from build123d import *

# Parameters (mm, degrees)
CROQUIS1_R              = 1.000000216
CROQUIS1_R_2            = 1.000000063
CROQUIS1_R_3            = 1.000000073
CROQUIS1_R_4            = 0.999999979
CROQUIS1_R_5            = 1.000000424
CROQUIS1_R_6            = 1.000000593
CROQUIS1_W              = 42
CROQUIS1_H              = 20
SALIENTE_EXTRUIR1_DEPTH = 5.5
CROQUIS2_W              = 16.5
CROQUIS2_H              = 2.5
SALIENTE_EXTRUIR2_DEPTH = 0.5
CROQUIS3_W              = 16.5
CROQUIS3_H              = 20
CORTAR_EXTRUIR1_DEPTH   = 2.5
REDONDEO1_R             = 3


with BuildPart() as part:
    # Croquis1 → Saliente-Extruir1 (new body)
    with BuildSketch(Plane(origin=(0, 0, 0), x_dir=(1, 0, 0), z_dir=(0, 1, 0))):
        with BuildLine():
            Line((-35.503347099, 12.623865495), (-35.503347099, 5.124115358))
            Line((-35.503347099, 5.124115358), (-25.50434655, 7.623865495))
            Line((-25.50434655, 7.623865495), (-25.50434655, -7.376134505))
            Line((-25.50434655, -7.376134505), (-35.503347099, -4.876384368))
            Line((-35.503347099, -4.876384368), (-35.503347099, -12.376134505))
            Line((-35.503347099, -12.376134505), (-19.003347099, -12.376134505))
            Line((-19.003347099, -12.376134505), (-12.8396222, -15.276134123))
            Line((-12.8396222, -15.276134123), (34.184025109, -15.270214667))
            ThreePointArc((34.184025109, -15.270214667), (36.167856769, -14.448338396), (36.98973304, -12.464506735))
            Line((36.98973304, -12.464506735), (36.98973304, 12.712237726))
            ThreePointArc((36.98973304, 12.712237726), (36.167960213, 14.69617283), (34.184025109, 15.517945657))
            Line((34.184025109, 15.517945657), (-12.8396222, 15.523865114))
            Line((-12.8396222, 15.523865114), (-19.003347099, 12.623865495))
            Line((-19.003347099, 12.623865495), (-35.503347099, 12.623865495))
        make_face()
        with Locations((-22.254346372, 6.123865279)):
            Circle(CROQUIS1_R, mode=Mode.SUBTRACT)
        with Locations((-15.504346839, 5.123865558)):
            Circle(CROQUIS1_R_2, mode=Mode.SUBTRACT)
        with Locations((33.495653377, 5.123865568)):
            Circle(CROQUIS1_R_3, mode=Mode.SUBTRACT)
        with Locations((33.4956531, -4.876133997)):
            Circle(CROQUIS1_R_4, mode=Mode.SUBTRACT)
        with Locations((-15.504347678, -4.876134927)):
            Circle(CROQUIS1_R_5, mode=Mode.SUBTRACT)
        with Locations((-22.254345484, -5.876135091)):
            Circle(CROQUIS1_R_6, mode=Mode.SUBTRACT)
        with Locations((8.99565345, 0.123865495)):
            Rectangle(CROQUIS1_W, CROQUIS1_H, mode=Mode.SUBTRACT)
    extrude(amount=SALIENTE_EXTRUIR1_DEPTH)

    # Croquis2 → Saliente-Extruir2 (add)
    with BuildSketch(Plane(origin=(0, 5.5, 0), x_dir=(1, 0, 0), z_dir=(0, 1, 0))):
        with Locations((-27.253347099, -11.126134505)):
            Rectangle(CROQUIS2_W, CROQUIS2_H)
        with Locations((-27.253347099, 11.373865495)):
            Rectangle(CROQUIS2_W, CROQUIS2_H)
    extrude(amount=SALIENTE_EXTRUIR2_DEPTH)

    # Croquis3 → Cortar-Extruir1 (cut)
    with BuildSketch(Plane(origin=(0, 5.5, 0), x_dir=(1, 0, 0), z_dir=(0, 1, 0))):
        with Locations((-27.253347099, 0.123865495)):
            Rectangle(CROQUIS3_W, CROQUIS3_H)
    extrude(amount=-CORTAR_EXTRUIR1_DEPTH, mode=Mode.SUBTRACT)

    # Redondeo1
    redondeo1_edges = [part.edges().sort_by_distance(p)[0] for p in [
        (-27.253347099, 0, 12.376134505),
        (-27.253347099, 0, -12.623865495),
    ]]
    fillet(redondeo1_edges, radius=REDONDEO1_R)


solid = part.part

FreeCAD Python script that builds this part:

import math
import FreeCAD as App
import Part
import Sketcher


def edges_at(feature, points):
    """Names of the edges that pass closest to the given points."""
    edges = feature.Shape.Edges
    near = lambda p: min(range(len(edges)), key=lambda i: edges[i].distToShape(Part.Vertex(*p))[0])
    return sorted({f"Edge{near(p) + 1}" for p in points})

doc = App.newDocument("Part")
body = doc.addObject("PartDesign::Body", "Body")

# Sketch on XZ plane
sketch1 = doc.addObject("Sketcher::SketchObject", "Sketch")
body.addObject(sketch1)
sketch1.AttachmentSupport = (doc.XZ_Plane, [""])
sketch1.MapMode = "FlatFace"
sketch1.addGeometry([
    Part.LineSegment(App.Vector(-35.5, -12.6, 0), App.Vector(-35.5, -5.1, 0)),  # 0
    Part.LineSegment(App.Vector(-35.5, -5.1, 0), App.Vector(-25.5, -7.6, 0)),  # 1
    Part.LineSegment(App.Vector(-25.5, -7.6, 0), App.Vector(-25.5, 7.4, 0)),  # 2
    Part.LineSegment(App.Vector(-25.5, 7.4, 0), App.Vector(-35.5, 4.9, 0)),  # 3
    Part.LineSegment(App.Vector(-35.5, 4.9, 0), App.Vector(-35.5, 12.4, 0)),  # 4
    Part.LineSegment(App.Vector(-35.5, 12.4, 0), App.Vector(-19, 12.4, 0)),  # 5
    Part.LineSegment(App.Vector(-19, 12.4, 0), App.Vector(-12.8, 15.3, 0)),  # 6
    Part.LineSegment(App.Vector(-12.8, 15.3, 0), App.Vector(34.2, 15.3, 0)),  # 7
    Part.ArcOfCircle(Part.Circle(App.Vector(34.2, 12.5, 0), App.Vector(0, 0, 1), 2.8), math.radians(0), math.radians(90)),  # 8
    Part.LineSegment(App.Vector(37, 12.5, 0), App.Vector(37, -12.7, 0)),  # 9
    Part.ArcOfCircle(Part.Circle(App.Vector(34.2, -12.7, 0), App.Vector(0, 0, 1), 2.8), math.radians(-90), math.radians(0)),  # 10
    Part.LineSegment(App.Vector(34.2, -15.5, 0), App.Vector(-12.8, -15.5, 0)),  # 11
    Part.LineSegment(App.Vector(-12.8, -15.5, 0), App.Vector(-19, -12.6, 0)),  # 12
    Part.LineSegment(App.Vector(-19, -12.6, 0), App.Vector(-35.5, -12.6, 0)),  # 13
    Part.Circle(App.Vector(-22.3, 5.9, 0), App.Vector(0, 0, 1), 1),  # 14
    Part.Circle(App.Vector(-15.5, 4.9, 0), App.Vector(0, 0, 1), 1),  # 15
    Part.Circle(App.Vector(33.5, 4.9, 0), App.Vector(0, 0, 1), 1),  # 16
    Part.Circle(App.Vector(-22.3, -6.1, 0), App.Vector(0, 0, 1), 1),  # 17
    Part.Circle(App.Vector(-15.5, -5.1, 0), App.Vector(0, 0, 1), 1),  # 18
    Part.LineSegment(App.Vector(30, 9.9, 0), App.Vector(-12, 9.9, 0)),  # 19
    Part.LineSegment(App.Vector(-12, 9.9, 0), App.Vector(-12, -10.1, 0)),  # 20
    Part.LineSegment(App.Vector(-12, -10.1, 0), App.Vector(30, -10.1, 0)),  # 21
    Part.LineSegment(App.Vector(30, -10.1, 0), App.Vector(30, 9.9, 0)),  # 22
    Part.Circle(App.Vector(33.5, -5.1, 0), App.Vector(0, 0, 1), 1),  # 23
], False)
sketch1.addConstraint([
    Sketcher.Constraint("Coincident", 0, 2, 1, 1),
    Sketcher.Constraint("Coincident", 1, 2, 2, 1),
    Sketcher.Constraint("Coincident", 2, 2, 3, 1),
    Sketcher.Constraint("Coincident", 3, 2, 4, 1),
    Sketcher.Constraint("Coincident", 4, 2, 5, 1),
    Sketcher.Constraint("Coincident", 5, 2, 6, 1),
    Sketcher.Constraint("Coincident", 6, 2, 7, 1),
    Sketcher.Constraint("Tangent", 7, 2, 8, 2),
    Sketcher.Constraint("Coincident", 8, 1, 9, 1),
    Sketcher.Constraint("Tangent", 9, 2, 10, 2),
    Sketcher.Constraint("Coincident", 10, 1, 11, 1),
    Sketcher.Constraint("Coincident", 11, 2, 12, 1),
    Sketcher.Constraint("Coincident", 12, 2, 13, 1),
    Sketcher.Constraint("Coincident", 13, 2, 0, 1),
    Sketcher.Constraint("Coincident", 19, 2, 20, 1),
    Sketcher.Constraint("Coincident", 20, 2, 21, 1),
    Sketcher.Constraint("Coincident", 21, 2, 22, 1),
    Sketcher.Constraint("Coincident", 22, 2, 19, 1),
    Sketcher.Constraint("Vertical", 0),
    Sketcher.Constraint("Vertical", 2),
    Sketcher.Constraint("Vertical", 4),
    Sketcher.Constraint("Horizontal", 5),
    Sketcher.Constraint("Vertical", 9),
    Sketcher.Constraint("Horizontal", 13),
    Sketcher.Constraint("Horizontal", 19),
    Sketcher.Constraint("Vertical", 20),
    Sketcher.Constraint("Horizontal", 21),
    Sketcher.Constraint("Vertical", 22),
    Sketcher.Constraint("Equal", 14, 15),
    Sketcher.Constraint("Equal", 15, 16),
    Sketcher.Constraint("Equal", 16, 17),
    Sketcher.Constraint("Equal", 17, 18),
    Sketcher.Constraint("Equal", 18, 23),
    Sketcher.Constraint("Horizontal", 15, 3, 16, 3),
    Sketcher.Constraint("Horizontal", 18, 3, 23, 3),
    Sketcher.Constraint("Vertical", 14, 3, 17, 3),
    Sketcher.Constraint("Vertical", 15, 3, 18, 3),
    Sketcher.Constraint("Vertical", 16, 3, 23, 3),
    Sketcher.Constraint("Vertical", 0, 2, 3, 2),
    Sketcher.Constraint("Vertical", 10, 3, 7, 2),
    Sketcher.Constraint("Vertical", 7, 2, 10, 1),
    Sketcher.Constraint("Vertical", 6, 2, 11, 2),
    Sketcher.Constraint("Vertical", 5, 2, 12, 2),
    Sketcher.Constraint("Equal", 0, 4),
    Sketcher.Constraint("Equal", 1, 3),
    Sketcher.Constraint("Equal", 6, 12),
    Sketcher.Constraint("Diameter", 14, 2.000001),
    Sketcher.Constraint("DistanceX", 19, 2, 19, 1, 42.0),
    Sketcher.Constraint("DistanceY", 2, 1, 2, 2, 15.0),
    Sketcher.Constraint("DistanceY", 20, 2, 20, 1, 20.0),
    Sketcher.Constraint("DistanceX", 5, 1, 5, 2, 16.5),
    Sketcher.Constraint("DistanceY", 15, 3, 14, 3, 1.0),
    Sketcher.Constraint("DistanceX", 15, 3, 16, 3, 49.000001),
    Sketcher.Constraint("DistanceY", 17, 3, 14, 3, 12.0),
    Sketcher.Constraint("DistanceY", 17, 3, 18, 3, 1.0),
    Sketcher.Constraint("DistanceX", 1, 2, 18, 3, 10.0),
    Sketcher.Constraint("DistanceY", 2, 2, 4, 2, 5.0),
    Sketcher.Constraint("DistanceY", 15, 3, 19, 2, 5.0),
    Sketcher.Constraint("DistanceY", 1, 2, 17, 3, 1.5),
    Sketcher.Constraint("DistanceY", 5, 2, 6, 2, 2.9),
    Sketcher.Constraint("DistanceX", 15, 3, 19, 2, 3.500001),
    Sketcher.Constraint("Radius", 8, 2.806061),
    Sketcher.Constraint("DistanceX", 14, 3, 16, 3, 55.749999),
    Sketcher.Constraint("Radius", 10, 2.805708),
    Sketcher.Constraint("DistanceX", 0, 2, 17, 3, 13.249001),
    Sketcher.Constraint("DistanceY", 0, 1, 0, 2, 7.49975),
    Sketcher.Constraint("DistanceY", 10, 1, 8, 3, 27.982099),
    Sketcher.Constraint("DistanceY", 9, 2, 9, 1, 25.176744),
    Sketcher.Constraint("DistanceX", -1, 1, 8, 3, 34.183672),
    Sketcher.Constraint("DistanceX", 14, 3, 10, 3, 56.438371),
    Sketcher.Constraint("Distance", 6, 6.811865),
    Sketcher.Constraint("DistanceY", -1, 1, 8, 3, 12.464154),
])
pad1 = doc.addObject("PartDesign::Pad", "Pad")
body.addObject(pad1)
pad1.Profile = sketch1
pad1.Length = 5.5
pad1.Reversed = True

# Sketch on XZ plane
sketch2 = doc.addObject("Sketcher::SketchObject", "Sketch001")
body.addObject(sketch2)
sketch2.AttachmentSupport = (doc.XZ_Plane, [""])
sketch2.MapMode = "FlatFace"
sketch2.AttachmentOffset = App.Placement(App.Vector(0, 0, -5.5), App.Rotation())
sketch2.addGeometry([
    Part.LineSegment(App.Vector(-35.5, 9.9, 0), App.Vector(-35.5, 12.4, 0)),  # 0
    Part.LineSegment(App.Vector(-35.5, 12.4, 0), App.Vector(-19, 12.4, 0)),  # 1
    Part.LineSegment(App.Vector(-19, 12.4, 0), App.Vector(-19, 9.9, 0)),  # 2
    Part.LineSegment(App.Vector(-19, 9.9, 0), App.Vector(-35.5, 9.9, 0)),  # 3
    Part.LineSegment(App.Vector(-35.5, -12.6, 0), App.Vector(-35.5, -10.1, 0)),  # 4
    Part.LineSegment(App.Vector(-35.5, -10.1, 0), App.Vector(-19, -10.1, 0)),  # 5
    Part.LineSegment(App.Vector(-19, -10.1, 0), App.Vector(-19, -12.6, 0)),  # 6
    Part.LineSegment(App.Vector(-19, -12.6, 0), App.Vector(-35.5, -12.6, 0)),  # 7
], False)
sketch2.addConstraint([
    Sketcher.Constraint("Coincident", 0, 2, 1, 1),
    Sketcher.Constraint("Coincident", 1, 2, 2, 1),
    Sketcher.Constraint("Coincident", 2, 2, 3, 1),
    Sketcher.Constraint("Coincident", 3, 2, 0, 1),
    Sketcher.Constraint("Coincident", 4, 2, 5, 1),
    Sketcher.Constraint("Coincident", 5, 2, 6, 1),
    Sketcher.Constraint("Coincident", 6, 2, 7, 1),
    Sketcher.Constraint("Coincident", 7, 2, 4, 1),
    Sketcher.Constraint("Vertical", 0),
    Sketcher.Constraint("Horizontal", 1),
    Sketcher.Constraint("Vertical", 2),
    Sketcher.Constraint("Horizontal", 3),
    Sketcher.Constraint("Vertical", 4),
    Sketcher.Constraint("Horizontal", 5),
    Sketcher.Constraint("Vertical", 6),
    Sketcher.Constraint("Horizontal", 7),
    Sketcher.Constraint("Vertical", 3, 2, 4, 2),
    Sketcher.Constraint("Vertical", 2, 2, 5, 2),
    Sketcher.Constraint("Equal", 2, 4),
    Sketcher.Constraint("DistanceX", 1, 1, 1, 2, 16.5),
    Sketcher.Constraint("DistanceY", 0, 1, 0, 2, 2.5),
    Sketcher.Constraint("DistanceY", 4, 2, 3, 2, 20.0),
    Sketcher.Constraint("DistanceX", 0, 2, -1, 1, 35.503347),
    Sketcher.Constraint("DistanceY", -1, 1, 0, 2, 12.376135),
])
pad2 = doc.addObject("PartDesign::Pad", "Pad001")
body.addObject(pad2)
pad2.Profile = sketch2
pad2.Length = 0.5
pad2.Reversed = True

# Sketch on XZ plane
sketch3 = doc.addObject("Sketcher::SketchObject", "Sketch002")
body.addObject(sketch3)
sketch3.AttachmentSupport = (doc.XZ_Plane, [""])
sketch3.MapMode = "FlatFace"
sketch3.AttachmentOffset = App.Placement(App.Vector(0, 0, -5.5), App.Rotation())
sketch3.addGeometry([
    Part.LineSegment(App.Vector(-36, -10, 0), App.Vector(-36, 10, 0)),
    Part.LineSegment(App.Vector(-36, 10, 0), App.Vector(-19, 10, 0)),
    Part.LineSegment(App.Vector(-19, 10, 0), App.Vector(-19, -10, 0)),
    Part.LineSegment(App.Vector(-19, -10, 0), App.Vector(-36, -10, 0)),
], False)
sketch3.addConstraint([
    Sketcher.Constraint("Coincident", 0, 2, 1, 1),
    Sketcher.Constraint("Coincident", 1, 2, 2, 1),
    Sketcher.Constraint("Coincident", 2, 2, 3, 1),
    Sketcher.Constraint("Coincident", 3, 2, 0, 1),
    Sketcher.Constraint("Vertical", 0),
    Sketcher.Constraint("Horizontal", 1),
    Sketcher.Constraint("Vertical", 2),
    Sketcher.Constraint("Horizontal", 3),
    Sketcher.Constraint("DistanceY", 0, 1, 0, 2, 20.0),
    Sketcher.Constraint("DistanceX", 1, 1, 1, 2, 16.5),
    Sketcher.Constraint("DistanceX", 0, 2, -1, 1, 35.503347),
    Sketcher.Constraint("DistanceY", -1, 1, 0, 2, 9.876135),
])
pocket1 = doc.addObject("PartDesign::Pocket", "Pocket")
body.addObject(pocket1)
pocket1.Profile = sketch3
pocket1.Length = 2.5
pocket1.Reversed = True
doc.recompute()

fillet = doc.addObject("PartDesign::Fillet", "Fillet")
body.addObject(fillet)
fillet.Base = (pocket1, edges_at(pocket1, [(-27.253, 0, 12.376), (-27.253, 0, -12.624)]))
fillet.Radius = 3

doc.recompute()
